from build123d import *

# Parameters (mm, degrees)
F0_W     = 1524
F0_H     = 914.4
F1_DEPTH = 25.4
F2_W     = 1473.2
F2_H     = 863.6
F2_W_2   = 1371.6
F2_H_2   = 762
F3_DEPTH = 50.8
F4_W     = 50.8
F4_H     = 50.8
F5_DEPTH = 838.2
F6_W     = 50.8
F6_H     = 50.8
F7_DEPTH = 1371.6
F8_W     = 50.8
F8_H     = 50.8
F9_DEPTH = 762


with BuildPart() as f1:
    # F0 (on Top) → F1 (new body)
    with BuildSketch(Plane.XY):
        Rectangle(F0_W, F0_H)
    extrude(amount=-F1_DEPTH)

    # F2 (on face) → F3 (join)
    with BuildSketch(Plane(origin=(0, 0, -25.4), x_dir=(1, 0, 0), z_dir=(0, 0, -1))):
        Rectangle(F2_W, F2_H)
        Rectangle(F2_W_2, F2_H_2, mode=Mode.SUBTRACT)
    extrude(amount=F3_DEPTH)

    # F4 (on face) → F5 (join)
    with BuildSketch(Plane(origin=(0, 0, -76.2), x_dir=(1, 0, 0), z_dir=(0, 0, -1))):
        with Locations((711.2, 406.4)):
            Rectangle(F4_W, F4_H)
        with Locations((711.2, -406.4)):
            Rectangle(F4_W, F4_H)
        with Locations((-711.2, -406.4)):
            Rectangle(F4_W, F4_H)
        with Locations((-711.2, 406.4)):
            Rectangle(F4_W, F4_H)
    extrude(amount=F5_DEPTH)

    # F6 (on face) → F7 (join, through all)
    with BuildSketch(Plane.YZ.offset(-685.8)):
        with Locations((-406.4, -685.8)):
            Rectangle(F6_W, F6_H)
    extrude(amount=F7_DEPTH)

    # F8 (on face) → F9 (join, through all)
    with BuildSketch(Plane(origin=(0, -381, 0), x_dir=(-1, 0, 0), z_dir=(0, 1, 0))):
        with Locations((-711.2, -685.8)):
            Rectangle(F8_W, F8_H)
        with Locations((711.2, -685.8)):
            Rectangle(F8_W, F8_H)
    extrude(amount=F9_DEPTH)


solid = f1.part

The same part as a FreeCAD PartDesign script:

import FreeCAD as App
import Part
import Sketcher
from FreeCAD import Vector
Q = App.Units.Quantity


def add_polygon(sketch, points):
    """Adds a closed chain of lines whose ends are joined by coincident constraints."""
    first, n = sketch.GeometryCount, len(points)
    for a, b in zip(points, points[1:] + points[:1]):
        sketch.addGeometry(Part.LineSegment(App.Vector(*a, 0), App.Vector(*b, 0)), False)
    for i in range(n):
        sketch.addConstraint(Sketcher.Constraint("Coincident", first + i, 2, first + (i + 1) % n, 1))

doc = App.newDocument("Part")
body = doc.addObject("PartDesign::Body", "Body")

sketch1 = body.newObject("Sketcher::SketchObject", "Sketch")
sketch1.AttachmentSupport = (doc.getObject("XY_Plane"), [""])
sketch1.MapMode = "FlatFace"
add_polygon(sketch1, [(-762, 457.2), (-762, -457.2), (762, -457.2), (762, 457.2)])
sketch1.addConstraint([
    Sketcher.Constraint("Vertical", 0),
    Sketcher.Constraint("Horizontal", 1),
    Sketcher.Constraint("Vertical", 2),
    Sketcher.Constraint("Horizontal", 3),
    Sketcher.Constraint("Symmetric", 0, 2, 2, 2, -1, 1),
    Sketcher.Constraint("DistanceX", 1, 1, 1, 2, Q("60 in")),
    Sketcher.Constraint("DistanceY", 0, 2, 0, 1, Q("36 in")),
])
pad1 = body.newObject("PartDesign::Pad", "Pad")
pad1.Profile = sketch1
pad1.Length = Q("1 in")
pad1.Reversed = True

sketch2 = body.newObject("Sketcher::SketchObject", "Sketch001")
sketch2.AttachmentSupport = (doc.getObject("XY_Plane"), [""])
sketch2.MapMode = "FlatFace"
sketch2.AttachmentOffset = App.Placement(Vector(0, 0, -1 * 25.4), App.Rotation())
add_polygon(sketch2, [(-736.6, -431.8), (-736.6, 431.8), (736.6, 431.8), (736.6, -431.8)])
add_polygon(sketch2, [(685.8, 381), (-685.8, 381), (-685.8, -381), (685.8, -381)])
sketch2.addConstraint([
    Sketcher.Constraint("Vertical", 0),
    Sketcher.Constraint("Horizontal", 1),
    Sketcher.Constraint("Vertical", 2),
    Sketcher.Constraint("Horizontal", 3),
    Sketcher.Constraint("Horizontal", 4),
    Sketcher.Constraint("Vertical", 5),
    Sketcher.Constraint("Horizontal", 6),
    Sketcher.Constraint("Vertical", 7),
    Sketcher.Constraint("Symmetric", 0, 2, 2, 2, -1, 1),
    Sketcher.Constraint("Symmetric", 4, 2, 6, 2, -1, 1),
    Sketcher.Constraint("DistanceX", 1, 1, 1, 2, Q("58 in")),
    Sketcher.Constraint("DistanceX", 4, 2, 4, 1, Q("54 in")),
    Sketcher.Constraint("DistanceY", 0, 1, 0, 2, Q("34 in")),
    Sketcher.Constraint("DistanceY", 5, 2, 5, 1, Q("30 in")),
])
pad2 = body.newObject("PartDesign::Pad", "Pad001")
pad2.Profile = sketch2
pad2.Length = Q("2 in")
pad2.Reversed = True

sketch3 = body.newObject("Sketcher::SketchObject", "Sketch002")
sketch3.AttachmentSupport = (doc.getObject("XY_Plane"), [""])
sketch3.MapMode = "FlatFace"
sketch3.AttachmentOffset = App.Placement(Vector(0, 0, -3 * 25.4), App.Rotation())
add_polygon(sketch3, [(685.8, -431.8), (685.8, -381), (736.6, -381), (736.6, -431.8)])
add_polygon(sketch3, [(685.8, 381), (685.8, 431.8), (736.6, 431.8), (736.6, 381)])
add_polygon(sketch3, [(-736.6, 381), (-736.6, 431.8), (-685.8, 431.8), (-685.8, 381)])
add_polygon(sketch3, [(-736.6, -431.8), (-736.6, -381), (-685.8, -381), (-685.8, -431.8)])
sketch3.addConstraint([
    Sketcher.Constraint("Vertical", 0),
    Sketcher.Constraint("Horizontal", 1),
    Sketcher.Constraint("Vertical", 2),
    Sketcher.Constraint("Horizontal", 3),
    Sketcher.Constraint("Vertical", 4),
    Sketcher.Constraint("Horizontal", 5),
    Sketcher.Constraint("Vertical", 6),
    Sketcher.Constraint("Horizontal", 7),
    Sketcher.Constraint("Vertical", 8),
    Sketcher.Constraint("Horizontal", 9),
    Sketcher.Constraint("Vertical", 10),
    Sketcher.Constraint("Horizontal", 11),
    Sketcher.Constraint("Vertical", 12),
    Sketcher.Constraint("Horizontal", 13),
    Sketcher.Constraint("Vertical", 14),
    Sketcher.Constraint("Horizontal", 15),
    Sketcher.Constraint("Symmetric", 2, 2, 8, 2, -1, 1),
    Sketcher.Constraint("Symmetric", 0, 2, 10, 2, -1, 1),
    Sketcher.Constraint("Symmetric", 6, 2, 12, 2, -1, 1),
    Sketcher.Constraint("Symmetric", 4, 2, 14, 2, -1, 1),
    Sketcher.Constraint("Symmetric", 5, 2, 8, 2, -2),
    Sketcher.Constraint("Symmetric", 7, 2, 10, 2, -2),
    Sketcher.Constraint("Equal", 15, 0),
    Sketcher.Constraint("DistanceX", 1, 1, 1, 2, Q("2 in")),
    Sketcher.Constraint("DistanceX", -1, 1, 0, 2, Q("27 in")),
    Sketcher.Constraint("DistanceY", 0, 2, -1, 1, Q("15 in")),
])
pad3 = body.newObject("PartDesign::Pad", "Pad002")
pad3.Profile = sketch3
pad3.Length = Q("33 in")
pad3.Reversed = True

sketch4 = body.newObject("Sketcher::SketchObject", "Sketch003")
sketch4.AttachmentSupport = (doc.getObject("YZ_Plane"), [""])
sketch4.MapMode = "FlatFace"
sketch4.AttachmentOffset = App.Placement(Vector(0, 0, -27 * 25.4), App.Rotation())
add_polygon(sketch4, [(-431.8, -660.4), (-431.8, -711.2), (-381, -711.2), (-381, -660.4)])
sketch4.addConstraint([
    Sketcher.Constraint("Vertical", 0),
    Sketcher.Constraint("Horizontal", 1),
    Sketcher.Constraint("Vertical", 2),
    Sketcher.Constraint("Horizontal", 3),
    Sketcher.Constraint("Equal", 3, 0),
    Sketcher.Constraint("DistanceX", 1, 1, 1, 2, Q("2 in")),
    Sketcher.Constraint("DistanceX", 0, 2, -1, 1, Q("17 in")),
    Sketcher.Constraint("DistanceY", 0, 2, -1, 1, Q("28 in")),
])
pad4 = body.newObject("PartDesign::Pad", "Pad003")
pad4.Profile = sketch4
pad4.Type = "UpToLast"

sketch5 = body.newObject("Sketcher::SketchObject", "Sketch004")
sketch5.AttachmentSupport = (doc.getObject("XZ_Plane"), [""])
sketch5.MapMode = "FlatFace"
sketch5.AttachmentOffset = App.Placement(Vector(0, 0, 15 * 25.4), App.Rotation())
add_polygon(sketch5, [(736.6, -660.4), (736.6, -711.2), (685.8, -711.2), (685.8, -660.4)])
add_polygon(sketch5, [(-685.8, -660.4), (-685.8, -711.2), (-736.6, -711.2), (-736.6, -660.4)])
sketch5.addConstraint([
    Sketcher.Constraint("Vertical", 0),
    Sketcher.Constraint("Horizontal", 1),
    Sketcher.Constraint("Vertical", 2),
    Sketcher.Constraint("Horizontal", 3),
    Sketcher.Constraint("Vertical", 4),
    Sketcher.Constraint("Horizontal", 5),
    Sketcher.Constraint("Vertical", 6),
    Sketcher.Constraint("Horizontal", 7),
    Sketcher.Constraint("Symmetric", 1, 2, 4, 2, -2),
    Sketcher.Constraint("Symmetric", 3, 2, 6, 2, -2),
    Sketcher.Constraint("Equal", 7, 0),
    Sketcher.Constraint("DistanceX", 1, 2, 1, 1, Q("2 in")),
    Sketcher.Constraint("DistanceX", -1, 1, 0, 2, Q("29 in")),
    Sketcher.Constraint("DistanceY", 0, 2, -1, 1, Q("28 in")),
])
pad5 = body.newObject("PartDesign::Pad", "Pad004")
pad5.Profile = sketch5
pad5.Length = Q("30 in")
pad5.Reversed = True

doc.recompute()
